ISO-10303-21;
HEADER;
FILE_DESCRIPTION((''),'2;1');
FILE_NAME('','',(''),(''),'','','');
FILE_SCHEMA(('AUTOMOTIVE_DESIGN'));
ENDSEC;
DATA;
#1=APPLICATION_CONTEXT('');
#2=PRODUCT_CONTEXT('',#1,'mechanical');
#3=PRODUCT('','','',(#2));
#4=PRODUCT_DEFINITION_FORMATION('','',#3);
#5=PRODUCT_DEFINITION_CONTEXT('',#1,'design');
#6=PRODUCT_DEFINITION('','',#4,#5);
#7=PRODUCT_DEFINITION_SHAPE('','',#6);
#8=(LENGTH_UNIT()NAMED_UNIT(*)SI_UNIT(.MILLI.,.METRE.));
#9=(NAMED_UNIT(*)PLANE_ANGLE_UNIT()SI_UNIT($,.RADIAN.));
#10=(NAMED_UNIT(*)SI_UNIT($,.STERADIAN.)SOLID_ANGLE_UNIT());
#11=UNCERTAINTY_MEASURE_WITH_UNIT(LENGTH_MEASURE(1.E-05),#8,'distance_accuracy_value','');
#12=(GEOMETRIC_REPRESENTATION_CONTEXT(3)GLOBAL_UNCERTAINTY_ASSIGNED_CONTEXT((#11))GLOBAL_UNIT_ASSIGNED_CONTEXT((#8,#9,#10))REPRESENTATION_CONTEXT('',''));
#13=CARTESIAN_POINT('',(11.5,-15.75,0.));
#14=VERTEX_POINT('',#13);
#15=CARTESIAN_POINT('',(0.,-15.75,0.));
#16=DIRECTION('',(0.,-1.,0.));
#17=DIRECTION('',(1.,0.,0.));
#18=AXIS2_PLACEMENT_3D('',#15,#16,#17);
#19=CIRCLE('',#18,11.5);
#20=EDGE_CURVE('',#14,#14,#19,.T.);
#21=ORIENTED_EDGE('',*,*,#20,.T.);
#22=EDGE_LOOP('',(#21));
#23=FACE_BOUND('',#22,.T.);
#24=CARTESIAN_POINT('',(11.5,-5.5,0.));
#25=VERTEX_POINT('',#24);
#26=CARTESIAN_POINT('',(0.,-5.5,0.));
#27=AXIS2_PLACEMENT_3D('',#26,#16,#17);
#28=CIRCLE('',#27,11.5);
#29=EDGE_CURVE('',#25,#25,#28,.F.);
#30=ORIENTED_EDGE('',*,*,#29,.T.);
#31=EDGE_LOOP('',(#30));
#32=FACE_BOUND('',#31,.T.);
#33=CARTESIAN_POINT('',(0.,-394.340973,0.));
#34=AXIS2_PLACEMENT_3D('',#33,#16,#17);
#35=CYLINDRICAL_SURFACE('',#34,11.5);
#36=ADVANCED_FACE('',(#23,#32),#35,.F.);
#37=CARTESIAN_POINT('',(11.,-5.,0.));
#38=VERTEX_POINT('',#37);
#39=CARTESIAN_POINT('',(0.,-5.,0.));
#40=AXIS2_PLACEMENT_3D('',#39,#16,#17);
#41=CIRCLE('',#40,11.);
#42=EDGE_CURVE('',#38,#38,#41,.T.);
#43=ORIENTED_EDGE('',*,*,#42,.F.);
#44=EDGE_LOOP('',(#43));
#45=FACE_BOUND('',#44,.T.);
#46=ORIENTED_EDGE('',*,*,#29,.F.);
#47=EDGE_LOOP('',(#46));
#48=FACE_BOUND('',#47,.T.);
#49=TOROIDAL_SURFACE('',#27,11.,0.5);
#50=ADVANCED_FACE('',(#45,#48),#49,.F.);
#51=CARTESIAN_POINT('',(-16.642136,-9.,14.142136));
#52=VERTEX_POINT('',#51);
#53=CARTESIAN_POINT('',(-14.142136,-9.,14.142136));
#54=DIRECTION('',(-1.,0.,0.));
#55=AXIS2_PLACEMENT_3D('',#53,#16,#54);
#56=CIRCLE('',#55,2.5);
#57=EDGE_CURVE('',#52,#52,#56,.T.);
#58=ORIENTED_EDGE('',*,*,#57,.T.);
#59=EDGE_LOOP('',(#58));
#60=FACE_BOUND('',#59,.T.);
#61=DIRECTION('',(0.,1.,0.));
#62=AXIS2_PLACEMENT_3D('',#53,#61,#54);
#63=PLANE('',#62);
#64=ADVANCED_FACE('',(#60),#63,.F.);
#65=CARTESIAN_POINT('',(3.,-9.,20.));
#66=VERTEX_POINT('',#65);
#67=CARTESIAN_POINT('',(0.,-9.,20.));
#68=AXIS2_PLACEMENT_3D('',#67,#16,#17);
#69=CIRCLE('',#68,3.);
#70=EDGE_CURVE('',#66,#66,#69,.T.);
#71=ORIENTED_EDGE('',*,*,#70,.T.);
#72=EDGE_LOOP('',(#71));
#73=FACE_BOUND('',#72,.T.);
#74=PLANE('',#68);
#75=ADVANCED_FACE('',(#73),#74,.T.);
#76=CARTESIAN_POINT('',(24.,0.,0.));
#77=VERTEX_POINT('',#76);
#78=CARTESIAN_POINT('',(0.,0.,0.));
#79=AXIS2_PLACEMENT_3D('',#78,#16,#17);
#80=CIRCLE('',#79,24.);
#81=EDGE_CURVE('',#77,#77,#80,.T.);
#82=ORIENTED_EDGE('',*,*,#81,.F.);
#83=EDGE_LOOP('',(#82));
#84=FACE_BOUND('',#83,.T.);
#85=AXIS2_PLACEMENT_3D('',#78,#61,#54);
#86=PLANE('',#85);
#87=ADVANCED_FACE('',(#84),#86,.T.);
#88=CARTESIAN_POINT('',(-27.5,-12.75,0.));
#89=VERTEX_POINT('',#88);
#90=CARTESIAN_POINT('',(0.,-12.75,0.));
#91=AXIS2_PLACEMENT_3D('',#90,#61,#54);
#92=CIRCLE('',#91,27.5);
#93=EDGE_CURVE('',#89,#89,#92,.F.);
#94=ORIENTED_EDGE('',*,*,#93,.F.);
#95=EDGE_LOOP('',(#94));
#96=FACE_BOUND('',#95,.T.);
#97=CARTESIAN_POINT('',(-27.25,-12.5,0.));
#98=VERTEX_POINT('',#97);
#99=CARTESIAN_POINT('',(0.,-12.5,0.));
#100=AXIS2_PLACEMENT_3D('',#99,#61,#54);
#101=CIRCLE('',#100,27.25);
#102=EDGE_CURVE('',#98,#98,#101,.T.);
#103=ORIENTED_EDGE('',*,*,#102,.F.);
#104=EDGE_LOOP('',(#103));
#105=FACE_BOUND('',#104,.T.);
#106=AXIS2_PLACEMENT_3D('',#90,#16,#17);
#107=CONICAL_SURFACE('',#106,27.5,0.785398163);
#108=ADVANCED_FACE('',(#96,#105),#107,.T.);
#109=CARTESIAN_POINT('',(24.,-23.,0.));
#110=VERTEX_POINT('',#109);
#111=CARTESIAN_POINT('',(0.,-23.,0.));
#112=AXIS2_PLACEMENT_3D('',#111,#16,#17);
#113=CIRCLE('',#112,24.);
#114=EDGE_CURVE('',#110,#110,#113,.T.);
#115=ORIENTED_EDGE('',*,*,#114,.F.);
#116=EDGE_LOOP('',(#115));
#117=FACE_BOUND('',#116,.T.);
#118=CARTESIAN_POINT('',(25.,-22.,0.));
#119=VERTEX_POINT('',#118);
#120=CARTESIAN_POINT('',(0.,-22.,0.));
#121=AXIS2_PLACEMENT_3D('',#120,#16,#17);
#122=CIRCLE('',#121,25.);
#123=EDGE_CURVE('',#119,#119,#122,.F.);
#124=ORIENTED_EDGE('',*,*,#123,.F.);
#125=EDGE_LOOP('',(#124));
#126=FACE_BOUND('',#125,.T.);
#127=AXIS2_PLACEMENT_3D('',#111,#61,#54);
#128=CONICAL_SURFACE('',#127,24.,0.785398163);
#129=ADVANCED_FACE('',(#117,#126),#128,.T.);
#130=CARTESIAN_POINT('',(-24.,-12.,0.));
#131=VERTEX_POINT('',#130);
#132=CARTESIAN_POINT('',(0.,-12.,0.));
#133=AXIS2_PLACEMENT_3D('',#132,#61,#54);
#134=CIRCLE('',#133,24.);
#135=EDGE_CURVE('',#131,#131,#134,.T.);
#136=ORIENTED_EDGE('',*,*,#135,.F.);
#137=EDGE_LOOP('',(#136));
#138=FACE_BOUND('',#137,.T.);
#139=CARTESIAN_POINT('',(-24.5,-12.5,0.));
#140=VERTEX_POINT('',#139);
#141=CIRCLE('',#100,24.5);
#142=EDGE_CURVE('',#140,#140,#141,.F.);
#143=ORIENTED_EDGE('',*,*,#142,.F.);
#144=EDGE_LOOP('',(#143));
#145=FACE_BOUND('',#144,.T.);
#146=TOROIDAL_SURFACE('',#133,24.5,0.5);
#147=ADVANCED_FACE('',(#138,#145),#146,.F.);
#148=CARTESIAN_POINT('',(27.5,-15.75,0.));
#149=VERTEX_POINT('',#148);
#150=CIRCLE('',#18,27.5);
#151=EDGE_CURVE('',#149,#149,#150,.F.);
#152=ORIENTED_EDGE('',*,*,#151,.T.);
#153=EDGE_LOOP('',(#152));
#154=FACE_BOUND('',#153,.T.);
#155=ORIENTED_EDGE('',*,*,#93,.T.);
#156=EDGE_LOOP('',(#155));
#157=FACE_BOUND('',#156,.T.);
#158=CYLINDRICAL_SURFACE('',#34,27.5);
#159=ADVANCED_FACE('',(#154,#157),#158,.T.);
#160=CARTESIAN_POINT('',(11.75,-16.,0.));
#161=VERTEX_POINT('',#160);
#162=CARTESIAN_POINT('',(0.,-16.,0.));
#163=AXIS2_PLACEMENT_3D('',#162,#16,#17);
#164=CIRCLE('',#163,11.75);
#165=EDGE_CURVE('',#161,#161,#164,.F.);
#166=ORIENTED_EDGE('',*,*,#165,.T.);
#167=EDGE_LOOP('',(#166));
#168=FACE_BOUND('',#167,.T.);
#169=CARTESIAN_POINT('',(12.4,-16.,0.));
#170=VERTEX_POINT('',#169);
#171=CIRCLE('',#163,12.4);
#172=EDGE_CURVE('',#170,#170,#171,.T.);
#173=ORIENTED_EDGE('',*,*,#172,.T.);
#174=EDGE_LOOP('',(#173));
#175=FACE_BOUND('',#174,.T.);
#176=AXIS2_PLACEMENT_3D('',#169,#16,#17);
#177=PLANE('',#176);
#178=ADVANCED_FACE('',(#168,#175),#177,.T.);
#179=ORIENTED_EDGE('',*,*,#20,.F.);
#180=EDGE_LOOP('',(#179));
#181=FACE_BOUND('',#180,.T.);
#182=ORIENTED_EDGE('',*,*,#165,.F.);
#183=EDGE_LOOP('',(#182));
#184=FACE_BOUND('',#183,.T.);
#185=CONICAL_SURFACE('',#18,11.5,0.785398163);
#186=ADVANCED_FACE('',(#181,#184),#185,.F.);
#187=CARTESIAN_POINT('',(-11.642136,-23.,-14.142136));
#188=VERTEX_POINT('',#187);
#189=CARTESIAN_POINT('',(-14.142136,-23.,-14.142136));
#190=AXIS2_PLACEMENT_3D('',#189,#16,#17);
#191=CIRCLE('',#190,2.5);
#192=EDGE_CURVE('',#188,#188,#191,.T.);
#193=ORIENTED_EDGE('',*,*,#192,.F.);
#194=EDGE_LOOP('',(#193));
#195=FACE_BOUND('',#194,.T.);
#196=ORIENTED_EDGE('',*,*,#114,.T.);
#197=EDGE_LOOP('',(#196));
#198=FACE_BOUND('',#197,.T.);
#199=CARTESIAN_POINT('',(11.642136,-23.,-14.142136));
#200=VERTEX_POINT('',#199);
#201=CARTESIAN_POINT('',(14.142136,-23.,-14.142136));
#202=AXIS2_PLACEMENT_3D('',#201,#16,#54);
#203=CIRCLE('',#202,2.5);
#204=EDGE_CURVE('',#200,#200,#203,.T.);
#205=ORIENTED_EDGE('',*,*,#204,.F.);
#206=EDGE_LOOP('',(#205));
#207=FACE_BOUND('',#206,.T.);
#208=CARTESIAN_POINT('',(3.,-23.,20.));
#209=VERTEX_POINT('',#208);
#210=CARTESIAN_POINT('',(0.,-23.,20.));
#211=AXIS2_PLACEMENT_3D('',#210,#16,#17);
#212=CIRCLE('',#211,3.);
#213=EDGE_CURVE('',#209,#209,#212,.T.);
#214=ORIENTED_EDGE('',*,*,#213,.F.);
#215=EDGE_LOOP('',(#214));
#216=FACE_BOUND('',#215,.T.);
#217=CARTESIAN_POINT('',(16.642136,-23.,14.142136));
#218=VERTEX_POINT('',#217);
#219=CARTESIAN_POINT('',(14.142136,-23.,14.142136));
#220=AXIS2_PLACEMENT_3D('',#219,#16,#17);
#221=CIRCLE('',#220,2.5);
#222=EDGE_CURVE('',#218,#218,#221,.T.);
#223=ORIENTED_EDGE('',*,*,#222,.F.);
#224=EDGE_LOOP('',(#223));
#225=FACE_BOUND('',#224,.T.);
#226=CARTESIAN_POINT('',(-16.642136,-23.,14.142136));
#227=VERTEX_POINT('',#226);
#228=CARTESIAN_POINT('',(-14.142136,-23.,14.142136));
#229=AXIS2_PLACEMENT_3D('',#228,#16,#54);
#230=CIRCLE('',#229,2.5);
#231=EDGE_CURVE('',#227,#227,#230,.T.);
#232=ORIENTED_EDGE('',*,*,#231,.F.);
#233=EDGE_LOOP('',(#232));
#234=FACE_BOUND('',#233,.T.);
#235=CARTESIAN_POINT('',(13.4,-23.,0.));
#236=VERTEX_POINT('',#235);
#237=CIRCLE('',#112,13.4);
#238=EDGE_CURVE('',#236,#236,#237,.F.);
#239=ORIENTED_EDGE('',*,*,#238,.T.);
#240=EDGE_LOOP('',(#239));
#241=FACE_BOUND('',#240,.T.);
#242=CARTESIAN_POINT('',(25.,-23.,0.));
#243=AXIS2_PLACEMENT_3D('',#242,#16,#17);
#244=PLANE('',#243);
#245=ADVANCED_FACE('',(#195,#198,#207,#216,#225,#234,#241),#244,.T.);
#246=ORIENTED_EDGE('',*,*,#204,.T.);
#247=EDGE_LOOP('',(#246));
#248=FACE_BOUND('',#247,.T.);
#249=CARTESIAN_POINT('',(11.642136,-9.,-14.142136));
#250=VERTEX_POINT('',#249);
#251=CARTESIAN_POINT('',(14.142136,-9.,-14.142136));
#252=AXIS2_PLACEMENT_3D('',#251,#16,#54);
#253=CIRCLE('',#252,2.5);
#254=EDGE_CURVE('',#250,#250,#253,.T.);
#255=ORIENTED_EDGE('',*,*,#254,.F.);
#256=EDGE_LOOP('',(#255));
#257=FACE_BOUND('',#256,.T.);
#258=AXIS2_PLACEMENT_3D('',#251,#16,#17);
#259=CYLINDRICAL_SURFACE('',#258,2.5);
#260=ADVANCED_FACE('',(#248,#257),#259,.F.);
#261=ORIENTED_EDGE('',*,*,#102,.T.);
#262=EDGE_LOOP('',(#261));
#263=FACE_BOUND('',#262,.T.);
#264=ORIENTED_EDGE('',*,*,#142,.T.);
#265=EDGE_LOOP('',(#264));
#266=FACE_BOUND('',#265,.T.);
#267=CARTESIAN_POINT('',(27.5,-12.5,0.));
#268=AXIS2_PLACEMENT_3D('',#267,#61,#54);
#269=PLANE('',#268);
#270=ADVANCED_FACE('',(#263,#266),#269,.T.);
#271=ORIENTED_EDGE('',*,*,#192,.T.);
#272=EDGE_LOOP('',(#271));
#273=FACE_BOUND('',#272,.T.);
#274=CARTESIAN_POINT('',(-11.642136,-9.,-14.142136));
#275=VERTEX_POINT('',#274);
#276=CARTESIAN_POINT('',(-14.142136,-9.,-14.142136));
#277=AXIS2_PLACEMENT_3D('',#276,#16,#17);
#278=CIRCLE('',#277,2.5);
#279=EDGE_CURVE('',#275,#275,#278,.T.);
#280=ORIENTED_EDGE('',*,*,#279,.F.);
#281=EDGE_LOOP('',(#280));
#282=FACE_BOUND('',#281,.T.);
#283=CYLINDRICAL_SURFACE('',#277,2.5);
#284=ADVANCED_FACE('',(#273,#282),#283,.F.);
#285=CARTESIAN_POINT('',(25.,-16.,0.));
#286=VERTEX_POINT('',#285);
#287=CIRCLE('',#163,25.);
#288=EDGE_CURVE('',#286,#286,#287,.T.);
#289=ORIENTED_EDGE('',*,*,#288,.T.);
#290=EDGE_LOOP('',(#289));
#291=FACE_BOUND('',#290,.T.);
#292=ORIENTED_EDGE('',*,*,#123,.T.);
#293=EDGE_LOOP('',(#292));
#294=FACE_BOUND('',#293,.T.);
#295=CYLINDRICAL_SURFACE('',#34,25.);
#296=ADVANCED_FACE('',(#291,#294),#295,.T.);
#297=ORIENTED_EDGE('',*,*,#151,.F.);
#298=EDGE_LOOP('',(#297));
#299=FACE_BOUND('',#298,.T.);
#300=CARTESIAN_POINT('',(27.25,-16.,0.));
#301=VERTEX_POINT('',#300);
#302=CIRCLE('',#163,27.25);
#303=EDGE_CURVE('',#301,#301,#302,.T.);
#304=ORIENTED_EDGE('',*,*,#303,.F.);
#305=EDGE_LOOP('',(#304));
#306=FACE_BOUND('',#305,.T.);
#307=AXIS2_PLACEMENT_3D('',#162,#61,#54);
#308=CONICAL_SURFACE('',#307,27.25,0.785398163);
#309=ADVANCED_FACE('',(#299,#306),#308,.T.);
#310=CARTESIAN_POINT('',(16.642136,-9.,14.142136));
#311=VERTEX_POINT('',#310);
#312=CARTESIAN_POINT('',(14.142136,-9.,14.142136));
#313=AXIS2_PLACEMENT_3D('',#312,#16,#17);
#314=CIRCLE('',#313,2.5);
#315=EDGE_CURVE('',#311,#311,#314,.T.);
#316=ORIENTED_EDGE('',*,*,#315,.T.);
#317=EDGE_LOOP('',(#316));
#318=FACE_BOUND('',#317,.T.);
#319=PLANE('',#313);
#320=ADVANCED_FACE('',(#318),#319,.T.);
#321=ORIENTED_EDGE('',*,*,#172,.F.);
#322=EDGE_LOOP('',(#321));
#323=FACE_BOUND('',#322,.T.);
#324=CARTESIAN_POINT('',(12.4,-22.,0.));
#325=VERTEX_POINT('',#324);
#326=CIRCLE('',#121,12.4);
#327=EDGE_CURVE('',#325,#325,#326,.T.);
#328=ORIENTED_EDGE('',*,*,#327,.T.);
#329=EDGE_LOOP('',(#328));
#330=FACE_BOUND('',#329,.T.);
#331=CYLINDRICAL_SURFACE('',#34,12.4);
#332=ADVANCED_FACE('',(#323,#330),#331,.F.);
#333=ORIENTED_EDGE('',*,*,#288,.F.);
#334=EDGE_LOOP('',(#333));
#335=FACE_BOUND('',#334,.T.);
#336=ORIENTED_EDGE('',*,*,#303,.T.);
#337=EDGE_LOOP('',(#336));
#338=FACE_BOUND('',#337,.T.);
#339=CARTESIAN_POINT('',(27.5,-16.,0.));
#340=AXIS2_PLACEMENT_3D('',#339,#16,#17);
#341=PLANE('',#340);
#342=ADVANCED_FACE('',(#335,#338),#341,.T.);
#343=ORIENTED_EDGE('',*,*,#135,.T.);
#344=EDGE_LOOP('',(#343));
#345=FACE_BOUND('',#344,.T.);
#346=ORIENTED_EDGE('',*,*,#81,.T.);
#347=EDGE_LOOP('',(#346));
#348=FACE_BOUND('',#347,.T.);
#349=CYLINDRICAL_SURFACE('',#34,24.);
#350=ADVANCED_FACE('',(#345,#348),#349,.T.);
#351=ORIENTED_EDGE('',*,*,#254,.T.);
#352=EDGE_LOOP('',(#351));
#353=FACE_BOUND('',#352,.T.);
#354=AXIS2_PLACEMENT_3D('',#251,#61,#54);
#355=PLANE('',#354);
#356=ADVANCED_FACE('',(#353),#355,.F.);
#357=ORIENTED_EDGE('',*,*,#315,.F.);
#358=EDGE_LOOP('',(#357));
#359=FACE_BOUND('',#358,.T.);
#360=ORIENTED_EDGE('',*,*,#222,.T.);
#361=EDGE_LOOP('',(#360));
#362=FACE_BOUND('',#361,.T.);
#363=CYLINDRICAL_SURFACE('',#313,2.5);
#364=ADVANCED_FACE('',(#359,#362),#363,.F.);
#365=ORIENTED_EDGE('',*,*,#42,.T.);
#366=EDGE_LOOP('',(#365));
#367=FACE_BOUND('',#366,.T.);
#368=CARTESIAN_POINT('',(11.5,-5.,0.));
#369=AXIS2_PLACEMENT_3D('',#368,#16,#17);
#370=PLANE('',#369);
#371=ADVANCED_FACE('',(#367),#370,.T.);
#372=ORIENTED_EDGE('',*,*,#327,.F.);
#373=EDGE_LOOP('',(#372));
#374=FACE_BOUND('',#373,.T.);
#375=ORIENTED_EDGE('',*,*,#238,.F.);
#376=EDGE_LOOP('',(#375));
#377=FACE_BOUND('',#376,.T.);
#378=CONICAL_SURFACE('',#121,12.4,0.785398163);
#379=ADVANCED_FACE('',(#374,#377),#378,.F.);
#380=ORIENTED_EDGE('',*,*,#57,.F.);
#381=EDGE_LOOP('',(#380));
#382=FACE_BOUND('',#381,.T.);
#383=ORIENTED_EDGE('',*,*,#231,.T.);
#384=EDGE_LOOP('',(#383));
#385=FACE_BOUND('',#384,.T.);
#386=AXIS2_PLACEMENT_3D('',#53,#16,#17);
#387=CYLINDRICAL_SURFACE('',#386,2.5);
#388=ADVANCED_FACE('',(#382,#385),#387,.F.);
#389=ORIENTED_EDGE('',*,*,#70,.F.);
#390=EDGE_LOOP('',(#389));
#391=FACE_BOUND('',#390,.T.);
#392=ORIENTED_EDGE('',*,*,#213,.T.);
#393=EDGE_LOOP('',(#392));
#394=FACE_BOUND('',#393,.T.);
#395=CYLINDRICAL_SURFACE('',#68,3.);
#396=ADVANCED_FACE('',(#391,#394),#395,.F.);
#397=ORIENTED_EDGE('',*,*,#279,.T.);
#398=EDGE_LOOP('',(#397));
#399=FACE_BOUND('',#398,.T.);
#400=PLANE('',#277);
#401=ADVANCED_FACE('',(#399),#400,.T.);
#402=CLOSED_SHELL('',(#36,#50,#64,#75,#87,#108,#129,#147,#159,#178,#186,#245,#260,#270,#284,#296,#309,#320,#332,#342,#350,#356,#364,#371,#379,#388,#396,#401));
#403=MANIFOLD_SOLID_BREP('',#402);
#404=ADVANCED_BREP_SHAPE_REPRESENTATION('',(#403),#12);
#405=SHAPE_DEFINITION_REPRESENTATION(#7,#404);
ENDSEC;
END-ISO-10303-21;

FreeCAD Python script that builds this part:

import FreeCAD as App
import Part
import Sketcher

V = App.Vector
Q = App.Units.Quantity


def edges_at(feature, points):
    """Names of the edges that pass closest to the given points."""
    edges = feature.Shape.Edges
    near = lambda p: min(range(len(edges)), key=lambda i: edges[i].distToShape(Part.Vertex(*p))[0])
    return sorted({f"Edge{near(p) + 1}" for p in points})


def add_polygon(sketch, points):
    """Adds a closed chain of lines whose ends are joined by coincident constraints."""
    first, n = sketch.GeometryCount, len(points)
    for a, b in zip(points, points[1:] + points[:1]):
        sketch.addGeometry(Part.LineSegment(App.Vector(*a, 0), App.Vector(*b, 0)), False)
    for i in range(n):
        sketch.addConstraint(Sketcher.Constraint("Coincident", first + i, 2, first + (i + 1) % n, 1))

doc = App.newDocument("Part")
body = doc.addObject("PartDesign::Body", "Body")

# Sketch on XY plane
sketch1 = body.newObject("Sketcher::SketchObject", "Sketch")
sketch1.AttachmentSupport = (doc.getObject("XY_Plane"), [""])
sketch1.MapMode = "FlatFace"
add_polygon(sketch1, [(27.5, -16), (27.5, -12.5), (24, -12.5), (24, 0), (0, 0), (0, -5), (11.5, -5), (11.5, -16), (12.4, -16), (12.4, -23), (25, -23), (25, -16)])  # lines 0-11
sketch1.addConstraint([
    Sketcher.Constraint("Vertical", 0),
    Sketcher.Constraint("Horizontal", 1),
    Sketcher.Constraint("Vertical", 2),
    Sketcher.Constraint("Horizontal", 3),
    Sketcher.Constraint("Vertical", 4),
    Sketcher.Constraint("Horizontal", 5),
    Sketcher.Constraint("Vertical", 6),
    Sketcher.Constraint("Horizontal", 7),
    Sketcher.Constraint("Vertical", 8),
    Sketcher.Constraint("Horizontal", 9),
    Sketcher.Constraint("Vertical", 10),
    Sketcher.Constraint("Horizontal", 11),
    Sketcher.Constraint("Coincident", 3, 2, -1, 1),
    Sketcher.Constraint("Horizontal", 7, 2, 10, 2),
    Sketcher.Constraint("Equal", 1, 0),
    Sketcher.Constraint("DistanceX", 3, 2, 3, 1, Q("24 mm")),
    Sketcher.Constraint("DistanceY", 4, 2, 4, 1, Q("5 mm")),
    Sketcher.Constraint("DistanceY", 6, 2, 6, 1, Q("11 mm")),
    Sketcher.Constraint("DistanceY", 8, 2, 8, 1, Q("7 mm")),
    Sketcher.Constraint("DistanceX", 1, 2, 1, 1, Q("3.5 mm")),
    Sketcher.Constraint("DistanceX", 5, 1, 5, 2, Q("11.5 mm")),
    Sketcher.Constraint("DistanceX", 7, 1, 7, 2, Q("0.9 mm")),
    Sketcher.Constraint("DistanceX", 9, 1, 9, 2, Q("12.6 mm")),
])
revolution = body.newObject("PartDesign::Revolution", "Revolution")
revolution.Profile = sketch1
revolution.ReferenceAxis = (sketch1, ["V_Axis"])
revolution.Angle = 360
doc.recompute()

chamfer = body.newObject("PartDesign::Chamfer", "Chamfer")
chamfer.Base = (revolution, edges_at(revolution, [(-12.4, -23, 0), (-25, -23, 0)]))
chamfer.Size = 1
doc.recompute()

chamfer2 = body.newObject("PartDesign::Chamfer", "Chamfer001")
chamfer2.Base = (chamfer, edges_at(chamfer, [(-11.5, -16, 0), (-27.5, -12.5, 0), (-27.5, -16, 0)]))
chamfer2.Size = 0.25
doc.recompute()

fillet = body.newObject("PartDesign::Fillet", "Fillet")
fillet.Base = (chamfer2, edges_at(chamfer2, [(-11.5, -5, 0), (-24, -12.5, 0)]))
fillet.Radius = 0.5

# Sketch on XZ plane
sketch2 = body.newObject("Sketcher::SketchObject", "Sketch001")
sketch2.AttachmentSupport = (doc.getObject("XZ_Plane"), [""])
sketch2.MapMode = "FlatFace"
sketch2.AttachmentOffset = App.Placement(V(0, 0, 23), App.Rotation())
sketch2.addGeometry([
    Part.Circle(V(14.1, 14.1, 0), V(0, 0, 1), 2.5),  # 0
    Part.Circle(V(-14.1, 14.1, 0), V(0, 0, 1), 2.5),  # 1
    Part.Circle(V(14.1, -14.1, 0), V(0, 0, 1), 2.5),  # 2
    Part.Circle(V(-14.1, -14.1, 0), V(0, 0, 1), 2.5),  # 3
    Part.Circle(V(0, 20, 0), V(0, 0, 1), 3),  # 4
], False)
sketch2.addConstraint([
    Sketcher.Constraint("Equal", 0, 1),
    Sketcher.Constraint("Equal", 1, 2),
    Sketcher.Constraint("Equal", 2, 3),
    Sketcher.Constraint("Symmetric", 1, 3, 2, 3, -1, 1),
    Sketcher.Constraint("Symmetric", 0, 3, 3, 3, -1, 1),
    Sketcher.Constraint("Symmetric", 0, 3, 1, 3, -2),
    Sketcher.Constraint("PointOnObject", 4, 3, -2),
    Sketcher.Constraint("Diameter", 0, Q("5 mm")),
    Sketcher.Constraint("Diameter", 4, Q("6 mm")),
    Sketcher.Constraint("DistanceY", -1, 1, 4, 3, Q("20 mm")),
    Sketcher.Constraint("DistanceX", 1, 3, 0, 3, Q("28.284271 mm")),
    Sketcher.Constraint("DistanceY", 2, 3, 0, 3, Q("28.284271 mm")),
])
pocket1 = body.newObject("PartDesign::Pocket", "Pocket")
pocket1.Profile = sketch2
pocket1.Length = 14

doc.recompute()
